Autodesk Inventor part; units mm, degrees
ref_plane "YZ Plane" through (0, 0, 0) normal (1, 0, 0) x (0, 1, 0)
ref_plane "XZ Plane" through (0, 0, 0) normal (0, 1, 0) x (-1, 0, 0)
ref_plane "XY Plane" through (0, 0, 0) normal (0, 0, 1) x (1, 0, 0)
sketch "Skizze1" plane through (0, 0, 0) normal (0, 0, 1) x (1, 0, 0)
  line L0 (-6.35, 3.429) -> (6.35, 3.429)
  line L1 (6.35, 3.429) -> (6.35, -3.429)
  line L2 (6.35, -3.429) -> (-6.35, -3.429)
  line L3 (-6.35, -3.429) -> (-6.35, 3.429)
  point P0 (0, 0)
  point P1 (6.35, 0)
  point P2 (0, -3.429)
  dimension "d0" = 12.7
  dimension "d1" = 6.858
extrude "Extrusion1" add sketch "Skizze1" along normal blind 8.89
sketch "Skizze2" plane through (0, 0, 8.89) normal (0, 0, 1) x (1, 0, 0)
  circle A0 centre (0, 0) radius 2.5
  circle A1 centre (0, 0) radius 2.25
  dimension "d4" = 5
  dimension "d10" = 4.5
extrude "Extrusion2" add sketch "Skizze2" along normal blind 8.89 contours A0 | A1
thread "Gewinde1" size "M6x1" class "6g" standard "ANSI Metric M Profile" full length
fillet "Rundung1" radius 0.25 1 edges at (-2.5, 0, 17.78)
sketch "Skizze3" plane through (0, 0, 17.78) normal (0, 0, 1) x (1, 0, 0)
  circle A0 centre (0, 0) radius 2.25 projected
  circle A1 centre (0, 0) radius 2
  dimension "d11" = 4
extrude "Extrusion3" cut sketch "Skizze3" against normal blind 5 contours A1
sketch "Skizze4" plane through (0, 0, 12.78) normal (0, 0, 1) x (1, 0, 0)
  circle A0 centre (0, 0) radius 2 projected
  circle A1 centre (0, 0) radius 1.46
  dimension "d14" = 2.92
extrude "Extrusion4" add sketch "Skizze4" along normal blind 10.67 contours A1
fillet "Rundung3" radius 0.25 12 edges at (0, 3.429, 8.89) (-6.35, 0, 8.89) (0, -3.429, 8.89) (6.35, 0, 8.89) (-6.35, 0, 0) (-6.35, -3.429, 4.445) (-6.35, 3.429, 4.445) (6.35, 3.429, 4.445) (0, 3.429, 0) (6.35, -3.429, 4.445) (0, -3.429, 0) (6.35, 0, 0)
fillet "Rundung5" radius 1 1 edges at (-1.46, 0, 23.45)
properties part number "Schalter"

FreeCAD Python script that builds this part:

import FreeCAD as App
import Part
import Sketcher


def edges_at(feature, points):
    """Names of the edges that pass closest to the given points."""
    edges = feature.Shape.Edges
    near = lambda p: min(range(len(edges)), key=lambda i: edges[i].distToShape(Part.Vertex(*p))[0])
    return sorted({f"Edge{near(p) + 1}" for p in points})

doc = App.newDocument("Part")
body = doc.addObject("PartDesign::Body", "Body")

# Sketch on XY plane
sketch1 = body.newObject("Sketcher::SketchObject", "Sketch")
sketch1.AttachmentSupport = (doc.getObject("XY_Plane"), [""])
sketch1.MapMode = "FlatFace"
sketch1.addGeometry([
    Part.LineSegment(App.Vector(6, 3, 0), App.Vector(-6, 3, 0)),
    Part.LineSegment(App.Vector(-6, 3, 0), App.Vector(-6, -3, 0)),
    Part.LineSegment(App.Vector(-6, -3, 0), App.Vector(6, -3, 0)),
    Part.LineSegment(App.Vector(6, -3, 0), App.Vector(6, 3, 0)),
], False)
sketch1.addConstraint([
    Sketcher.Constraint("Coincident", 0, 2, 1, 1),
    Sketcher.Constraint("Coincident", 1, 2, 2, 1),
    Sketcher.Constraint("Coincident", 2, 2, 3, 1),
    Sketcher.Constraint("Coincident", 3, 2, 0, 1),
    Sketcher.Constraint("Horizontal", 0),
    Sketcher.Constraint("Vertical", 1),
    Sketcher.Constraint("Horizontal", 2),
    Sketcher.Constraint("Vertical", 3),
    Sketcher.Constraint("Symmetric", 0, 2, 2, 2, -1, 1),
    Sketcher.Constraint("DistanceX", 0, 2, 0, 1, 12.7),
    Sketcher.Constraint("DistanceY", 1, 2, 1, 1, 6.858),
])
pad1 = body.newObject("PartDesign::Pad", "Pad")
pad1.Profile = sketch1
pad1.Length = 8.89

# Sketch on XY plane
sketch2 = body.newObject("Sketcher::SketchObject", "Sketch001")
sketch2.AttachmentSupport = (doc.getObject("XY_Plane"), [""])
sketch2.MapMode = "FlatFace"
sketch2.AttachmentOffset = App.Placement(App.Vector(0, 0, 8.89), App.Rotation())
sketch2.addGeometry(Part.Circle(App.Vector(0, 0, 0), App.Vector(0, 0, 1), 2.5), False)
sketch2.addConstraint([
    Sketcher.Constraint("Coincident", 0, 3, -1, 1),
    Sketcher.Constraint("Diameter", 0, 5.0),
])
pad2 = body.newObject("PartDesign::Pad", "Pad001")
pad2.Profile = sketch2
pad2.Length = 8.89
doc.recompute()

fillet = body.newObject("PartDesign::Fillet", "Fillet")
fillet.Base = (pad2, edges_at(pad2, [(-2.5, 0, 17.78)]))
fillet.Radius = 0.25

# Sketch on XY plane
sketch3 = body.newObject("Sketcher::SketchObject", "Sketch002")
sketch3.AttachmentSupport = (doc.getObject("XY_Plane"), [""])
sketch3.MapMode = "FlatFace"
sketch3.AttachmentOffset = App.Placement(App.Vector(0, 0, 17.78), App.Rotation())
sketch3.addGeometry(Part.Circle(App.Vector(0, 0, 0), App.Vector(0, 0, 1), 2), False)
sketch3.addConstraint([
    Sketcher.Constraint("Coincident", 0, 3, -1, 1),
    Sketcher.Constraint("Diameter", 0, 4.0),
])
pocket1 = body.newObject("PartDesign::Pocket", "Pocket")
pocket1.Profile = sketch3
pocket1.Length = 5

# Sketch on XY plane
sketch4 = body.newObject("Sketcher::SketchObject", "Sketch003")
sketch4.AttachmentSupport = (doc.getObject("XY_Plane"), [""])
sketch4.MapMode = "FlatFace"
sketch4.AttachmentOffset = App.Placement(App.Vector(0, 0, 12.78), App.Rotation())
sketch4.addGeometry(Part.Circle(App.Vector(0, 0, 0), App.Vector(0, 0, 1), 1.5), False)
sketch4.addConstraint([
    Sketcher.Constraint("Coincident", 0, 3, -1, 1),
    Sketcher.Constraint("Diameter", 0, 2.92),
])
pad3 = body.newObject("PartDesign::Pad", "Pad002")
pad3.Profile = sketch4
pad3.Length = 10.67
doc.recompute()

fillet2 = body.newObject("PartDesign::Fillet", "Fillet001")
fillet2.Base = (pad3, edges_at(pad3, [
    (0, 3.429, 8.89),
    (-6.35, 0, 8.89),
    (0, -3.429, 8.89),
    (6.35, 0, 8.89),
    (-6.35, 0, 0),
    (-6.35, -3.429, 4.445),
    (-6.35, 3.429, 4.445),
    (6.35, 3.429, 4.445),
    (0, 3.429, 0),
    (6.35, -3.429, 4.445),
    (0, -3.429, 0),
    (6.35, 0, 0),
]))
fillet2.Radius = 0.25
doc.recompute()

fillet3 = body.newObject("PartDesign::Fillet", "Fillet002")
fillet3.Base = (fillet2, edges_at(fillet2, [(-1.46, 0, 23.45)]))
fillet3.Radius = 1

doc.recompute()
